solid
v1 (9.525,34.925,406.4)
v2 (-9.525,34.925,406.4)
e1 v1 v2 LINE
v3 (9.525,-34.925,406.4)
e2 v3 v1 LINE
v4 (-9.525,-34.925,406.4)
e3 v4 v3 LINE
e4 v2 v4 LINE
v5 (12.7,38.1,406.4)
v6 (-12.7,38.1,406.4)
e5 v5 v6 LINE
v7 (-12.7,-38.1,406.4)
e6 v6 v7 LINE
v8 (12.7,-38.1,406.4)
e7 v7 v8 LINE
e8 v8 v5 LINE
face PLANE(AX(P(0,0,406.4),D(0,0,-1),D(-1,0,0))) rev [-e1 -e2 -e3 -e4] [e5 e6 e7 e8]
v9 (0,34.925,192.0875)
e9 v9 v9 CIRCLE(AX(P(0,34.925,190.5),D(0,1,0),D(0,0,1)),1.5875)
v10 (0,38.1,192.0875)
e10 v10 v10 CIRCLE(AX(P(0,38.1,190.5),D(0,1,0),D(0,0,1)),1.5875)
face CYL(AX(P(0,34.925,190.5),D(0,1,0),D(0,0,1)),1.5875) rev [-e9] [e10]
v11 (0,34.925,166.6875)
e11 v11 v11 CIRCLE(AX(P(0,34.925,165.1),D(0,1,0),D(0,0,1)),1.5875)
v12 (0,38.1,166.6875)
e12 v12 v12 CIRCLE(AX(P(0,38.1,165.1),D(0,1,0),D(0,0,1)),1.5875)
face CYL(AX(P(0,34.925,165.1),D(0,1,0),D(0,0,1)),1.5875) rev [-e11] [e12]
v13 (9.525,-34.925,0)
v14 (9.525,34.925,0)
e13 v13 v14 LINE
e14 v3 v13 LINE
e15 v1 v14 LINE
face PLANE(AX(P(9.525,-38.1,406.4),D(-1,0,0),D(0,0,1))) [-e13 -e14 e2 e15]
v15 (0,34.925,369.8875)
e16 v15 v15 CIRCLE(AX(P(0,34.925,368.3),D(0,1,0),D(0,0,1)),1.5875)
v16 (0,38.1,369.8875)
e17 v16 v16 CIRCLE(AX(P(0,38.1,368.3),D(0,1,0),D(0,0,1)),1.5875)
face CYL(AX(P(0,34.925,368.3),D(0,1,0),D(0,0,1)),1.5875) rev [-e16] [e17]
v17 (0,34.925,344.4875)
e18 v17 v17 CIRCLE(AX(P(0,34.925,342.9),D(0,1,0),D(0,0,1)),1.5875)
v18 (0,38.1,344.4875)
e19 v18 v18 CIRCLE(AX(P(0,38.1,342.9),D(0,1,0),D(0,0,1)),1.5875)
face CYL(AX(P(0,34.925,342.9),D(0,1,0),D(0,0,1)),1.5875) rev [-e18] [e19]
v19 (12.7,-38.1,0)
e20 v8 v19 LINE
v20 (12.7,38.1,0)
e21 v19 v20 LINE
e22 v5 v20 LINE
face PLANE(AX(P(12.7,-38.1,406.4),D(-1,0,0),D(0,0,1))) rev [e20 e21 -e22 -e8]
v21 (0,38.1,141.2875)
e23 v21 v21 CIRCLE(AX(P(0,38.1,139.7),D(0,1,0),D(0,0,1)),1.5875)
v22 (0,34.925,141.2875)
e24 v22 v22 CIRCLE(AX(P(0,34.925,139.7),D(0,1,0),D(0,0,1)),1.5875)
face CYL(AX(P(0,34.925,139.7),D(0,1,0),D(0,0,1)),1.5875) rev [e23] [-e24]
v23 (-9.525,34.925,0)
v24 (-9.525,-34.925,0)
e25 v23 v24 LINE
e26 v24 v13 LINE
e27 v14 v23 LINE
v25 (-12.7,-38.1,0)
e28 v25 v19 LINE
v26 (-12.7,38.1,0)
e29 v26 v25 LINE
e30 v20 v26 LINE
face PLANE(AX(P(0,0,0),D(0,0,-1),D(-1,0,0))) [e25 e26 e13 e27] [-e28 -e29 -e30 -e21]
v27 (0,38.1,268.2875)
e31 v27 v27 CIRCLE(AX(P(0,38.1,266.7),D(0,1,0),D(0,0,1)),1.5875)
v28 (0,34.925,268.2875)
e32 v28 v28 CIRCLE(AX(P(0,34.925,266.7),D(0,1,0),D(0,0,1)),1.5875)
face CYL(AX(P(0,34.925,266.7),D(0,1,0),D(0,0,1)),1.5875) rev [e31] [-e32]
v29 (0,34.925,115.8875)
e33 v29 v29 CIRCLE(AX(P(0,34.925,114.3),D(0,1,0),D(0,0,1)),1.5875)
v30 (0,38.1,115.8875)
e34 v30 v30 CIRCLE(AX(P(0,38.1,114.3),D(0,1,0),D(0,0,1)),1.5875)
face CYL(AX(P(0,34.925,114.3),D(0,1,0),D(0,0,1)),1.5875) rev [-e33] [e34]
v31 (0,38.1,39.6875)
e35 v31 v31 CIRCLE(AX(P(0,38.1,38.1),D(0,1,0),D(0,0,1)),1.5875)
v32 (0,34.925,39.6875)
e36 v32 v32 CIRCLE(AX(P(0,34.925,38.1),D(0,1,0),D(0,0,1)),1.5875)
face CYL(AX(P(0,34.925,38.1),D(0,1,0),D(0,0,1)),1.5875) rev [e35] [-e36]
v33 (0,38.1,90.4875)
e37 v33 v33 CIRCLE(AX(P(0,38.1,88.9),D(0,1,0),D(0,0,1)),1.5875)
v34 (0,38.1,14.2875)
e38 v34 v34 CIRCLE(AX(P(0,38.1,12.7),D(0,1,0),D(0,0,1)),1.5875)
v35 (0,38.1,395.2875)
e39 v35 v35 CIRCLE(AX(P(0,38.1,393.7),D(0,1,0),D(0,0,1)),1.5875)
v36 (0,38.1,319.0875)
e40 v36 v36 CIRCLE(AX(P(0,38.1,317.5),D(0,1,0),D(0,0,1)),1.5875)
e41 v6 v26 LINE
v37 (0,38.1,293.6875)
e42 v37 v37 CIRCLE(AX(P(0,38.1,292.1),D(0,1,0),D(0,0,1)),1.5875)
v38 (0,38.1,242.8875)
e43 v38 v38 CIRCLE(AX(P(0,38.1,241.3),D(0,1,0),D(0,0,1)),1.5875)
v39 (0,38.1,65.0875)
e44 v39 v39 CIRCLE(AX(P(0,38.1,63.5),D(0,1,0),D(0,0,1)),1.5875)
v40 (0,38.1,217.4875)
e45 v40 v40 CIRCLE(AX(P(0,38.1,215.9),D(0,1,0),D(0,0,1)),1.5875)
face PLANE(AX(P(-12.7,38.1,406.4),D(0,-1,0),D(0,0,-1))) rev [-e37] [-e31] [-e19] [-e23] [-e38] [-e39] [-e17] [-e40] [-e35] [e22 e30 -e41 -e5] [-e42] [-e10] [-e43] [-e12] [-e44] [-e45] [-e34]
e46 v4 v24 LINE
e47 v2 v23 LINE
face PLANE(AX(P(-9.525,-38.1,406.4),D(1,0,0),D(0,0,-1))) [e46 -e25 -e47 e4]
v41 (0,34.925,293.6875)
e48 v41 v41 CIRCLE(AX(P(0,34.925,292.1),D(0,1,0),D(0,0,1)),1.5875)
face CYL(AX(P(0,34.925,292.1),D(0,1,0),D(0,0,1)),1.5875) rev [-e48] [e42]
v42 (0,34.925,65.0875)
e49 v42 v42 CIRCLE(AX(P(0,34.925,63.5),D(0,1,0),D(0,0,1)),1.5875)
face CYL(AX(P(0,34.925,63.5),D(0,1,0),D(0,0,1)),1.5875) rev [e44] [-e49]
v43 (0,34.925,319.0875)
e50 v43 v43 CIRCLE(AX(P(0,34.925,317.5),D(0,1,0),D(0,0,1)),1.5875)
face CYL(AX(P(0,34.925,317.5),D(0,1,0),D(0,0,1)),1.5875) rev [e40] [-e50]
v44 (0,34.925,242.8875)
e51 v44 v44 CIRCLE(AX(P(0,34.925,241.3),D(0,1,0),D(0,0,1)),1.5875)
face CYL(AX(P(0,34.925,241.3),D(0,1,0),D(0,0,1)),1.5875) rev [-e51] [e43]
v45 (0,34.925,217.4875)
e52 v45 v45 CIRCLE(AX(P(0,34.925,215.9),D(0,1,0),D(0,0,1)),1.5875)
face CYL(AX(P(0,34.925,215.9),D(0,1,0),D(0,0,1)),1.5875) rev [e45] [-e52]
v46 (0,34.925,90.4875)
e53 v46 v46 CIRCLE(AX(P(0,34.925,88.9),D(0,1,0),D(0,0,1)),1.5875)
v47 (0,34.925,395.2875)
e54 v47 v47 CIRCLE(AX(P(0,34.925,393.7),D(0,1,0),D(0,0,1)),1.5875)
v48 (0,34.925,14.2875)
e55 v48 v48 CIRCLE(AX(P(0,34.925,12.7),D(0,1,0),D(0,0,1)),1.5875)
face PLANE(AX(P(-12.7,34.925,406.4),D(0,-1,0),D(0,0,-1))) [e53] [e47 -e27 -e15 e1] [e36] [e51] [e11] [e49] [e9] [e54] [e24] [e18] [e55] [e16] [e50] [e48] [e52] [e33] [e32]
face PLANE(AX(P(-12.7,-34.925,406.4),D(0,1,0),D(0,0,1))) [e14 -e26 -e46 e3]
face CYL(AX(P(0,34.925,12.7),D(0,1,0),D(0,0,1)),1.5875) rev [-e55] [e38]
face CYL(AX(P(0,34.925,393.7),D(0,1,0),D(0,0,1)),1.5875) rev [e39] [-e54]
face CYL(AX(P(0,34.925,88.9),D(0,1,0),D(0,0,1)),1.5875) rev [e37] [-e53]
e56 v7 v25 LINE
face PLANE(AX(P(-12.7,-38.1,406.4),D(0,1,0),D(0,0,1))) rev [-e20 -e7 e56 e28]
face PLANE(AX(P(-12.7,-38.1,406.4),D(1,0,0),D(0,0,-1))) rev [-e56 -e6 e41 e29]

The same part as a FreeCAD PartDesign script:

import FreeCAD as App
import Part
import Sketcher
from FreeCAD import Vector
Q = App.Units.Quantity


def faces_at(feature, points):
    """Names of the faces that lie closest to the given points."""
    faces = feature.Shape.Faces
    near = lambda p: min(range(len(faces)), key=lambda i: faces[i].distToShape(Part.Vertex(*p))[0])
    return sorted({f"Face{near(p) + 1}" for p in points})


def add_polygon(sketch, points):
    """Adds a closed chain of lines whose ends are joined by coincident constraints."""
    first, n = sketch.GeometryCount, len(points)
    for a, b in zip(points, points[1:] + points[:1]):
        sketch.addGeometry(Part.LineSegment(App.Vector(*a, 0), App.Vector(*b, 0)), False)
    for i in range(n):
        sketch.addConstraint(Sketcher.Constraint("Coincident", first + i, 2, first + (i + 1) % n, 1))

doc = App.newDocument("Part")
body = doc.addObject("PartDesign::Body", "Body")

# Sketch on XY plane
sketch1 = body.newObject("Sketcher::SketchObject", "Sketch")
sketch1.AttachmentSupport = (doc.getObject("XY_Plane"), [""])
sketch1.MapMode = "FlatFace"
add_polygon(sketch1, [(-13, 38), (-13, -38), (13, -38), (13, 38)])  # lines 0-3
sketch1.addConstraint(Sketcher.Constraint("Vertical", 0))
sketch1.addConstraint(Sketcher.Constraint("Horizontal", 1))
sketch1.addConstraint(Sketcher.Constraint("Vertical", 2))
sketch1.addConstraint(Sketcher.Constraint("Horizontal", 3))
sketch1.addConstraint(Sketcher.Constraint("Symmetric", 0, 2, 2, 2, -1, 1))
sketch1.addConstraint(Sketcher.Constraint("DistanceX", 1, 1, 1, 2, Q("1 in")))
sketch1.addConstraint(Sketcher.Constraint("DistanceY", 0, 2, 0, 1, Q("3 in")))
pad1 = body.newObject("PartDesign::Pad", "Pad")
pad1.Profile = sketch1
pad1.Length = Q("16 in")
doc.recompute()

thickness = body.newObject("PartDesign::Thickness", "Thickness")
thickness.Base = (pad1, faces_at(pad1, [(0, 0, 406.4), (0, 0, 0)]))
thickness.Value = Q("0.125 in")
thickness.Reversed = True
thickness.Join = "Intersection"

# Sketch on XZ plane
sketch2 = body.newObject("Sketcher::SketchObject", "Sketch001")
sketch2.AttachmentSupport = (doc.getObject("XZ_Plane"), [""])
sketch2.MapMode = "FlatFace"
sketch2.AttachmentOffset = App.Placement(Vector(0, 0, -1.5 * 25.4), App.Rotation())
sketch2.addGeometry(Part.Circle(Vector(0, 12.7, 0), Vector(0, 0, 1), 1.6), False)
sketch2.addConstraint(Sketcher.Constraint("PointOnObject", 0, 3, -2))
sketch2.addConstraint(Sketcher.Constraint("Diameter", 0, Q("0.125 in")))
sketch2.addConstraint(Sketcher.Constraint("DistanceY", -1, 1, 0, 3, Q("0.5 in")))
pocket1 = body.newObject("PartDesign::Pocket", "Pocket")
pocket1.Profile = sketch2
pocket1.Length = Q("0.125 in")
pocket1.Reversed = True
doc.recompute()

linearpattern = body.newObject("PartDesign::LinearPattern", "LinearPattern")
linearpattern.Originals = [pocket1]
linearpattern.Direction = (doc.getObject("Z_Axis"), [""])
linearpattern.Mode = "offset"
linearpattern.Offset = Q("1 in")
linearpattern.Occurrences = 16
body.Tip = linearpattern

doc.recompute()
